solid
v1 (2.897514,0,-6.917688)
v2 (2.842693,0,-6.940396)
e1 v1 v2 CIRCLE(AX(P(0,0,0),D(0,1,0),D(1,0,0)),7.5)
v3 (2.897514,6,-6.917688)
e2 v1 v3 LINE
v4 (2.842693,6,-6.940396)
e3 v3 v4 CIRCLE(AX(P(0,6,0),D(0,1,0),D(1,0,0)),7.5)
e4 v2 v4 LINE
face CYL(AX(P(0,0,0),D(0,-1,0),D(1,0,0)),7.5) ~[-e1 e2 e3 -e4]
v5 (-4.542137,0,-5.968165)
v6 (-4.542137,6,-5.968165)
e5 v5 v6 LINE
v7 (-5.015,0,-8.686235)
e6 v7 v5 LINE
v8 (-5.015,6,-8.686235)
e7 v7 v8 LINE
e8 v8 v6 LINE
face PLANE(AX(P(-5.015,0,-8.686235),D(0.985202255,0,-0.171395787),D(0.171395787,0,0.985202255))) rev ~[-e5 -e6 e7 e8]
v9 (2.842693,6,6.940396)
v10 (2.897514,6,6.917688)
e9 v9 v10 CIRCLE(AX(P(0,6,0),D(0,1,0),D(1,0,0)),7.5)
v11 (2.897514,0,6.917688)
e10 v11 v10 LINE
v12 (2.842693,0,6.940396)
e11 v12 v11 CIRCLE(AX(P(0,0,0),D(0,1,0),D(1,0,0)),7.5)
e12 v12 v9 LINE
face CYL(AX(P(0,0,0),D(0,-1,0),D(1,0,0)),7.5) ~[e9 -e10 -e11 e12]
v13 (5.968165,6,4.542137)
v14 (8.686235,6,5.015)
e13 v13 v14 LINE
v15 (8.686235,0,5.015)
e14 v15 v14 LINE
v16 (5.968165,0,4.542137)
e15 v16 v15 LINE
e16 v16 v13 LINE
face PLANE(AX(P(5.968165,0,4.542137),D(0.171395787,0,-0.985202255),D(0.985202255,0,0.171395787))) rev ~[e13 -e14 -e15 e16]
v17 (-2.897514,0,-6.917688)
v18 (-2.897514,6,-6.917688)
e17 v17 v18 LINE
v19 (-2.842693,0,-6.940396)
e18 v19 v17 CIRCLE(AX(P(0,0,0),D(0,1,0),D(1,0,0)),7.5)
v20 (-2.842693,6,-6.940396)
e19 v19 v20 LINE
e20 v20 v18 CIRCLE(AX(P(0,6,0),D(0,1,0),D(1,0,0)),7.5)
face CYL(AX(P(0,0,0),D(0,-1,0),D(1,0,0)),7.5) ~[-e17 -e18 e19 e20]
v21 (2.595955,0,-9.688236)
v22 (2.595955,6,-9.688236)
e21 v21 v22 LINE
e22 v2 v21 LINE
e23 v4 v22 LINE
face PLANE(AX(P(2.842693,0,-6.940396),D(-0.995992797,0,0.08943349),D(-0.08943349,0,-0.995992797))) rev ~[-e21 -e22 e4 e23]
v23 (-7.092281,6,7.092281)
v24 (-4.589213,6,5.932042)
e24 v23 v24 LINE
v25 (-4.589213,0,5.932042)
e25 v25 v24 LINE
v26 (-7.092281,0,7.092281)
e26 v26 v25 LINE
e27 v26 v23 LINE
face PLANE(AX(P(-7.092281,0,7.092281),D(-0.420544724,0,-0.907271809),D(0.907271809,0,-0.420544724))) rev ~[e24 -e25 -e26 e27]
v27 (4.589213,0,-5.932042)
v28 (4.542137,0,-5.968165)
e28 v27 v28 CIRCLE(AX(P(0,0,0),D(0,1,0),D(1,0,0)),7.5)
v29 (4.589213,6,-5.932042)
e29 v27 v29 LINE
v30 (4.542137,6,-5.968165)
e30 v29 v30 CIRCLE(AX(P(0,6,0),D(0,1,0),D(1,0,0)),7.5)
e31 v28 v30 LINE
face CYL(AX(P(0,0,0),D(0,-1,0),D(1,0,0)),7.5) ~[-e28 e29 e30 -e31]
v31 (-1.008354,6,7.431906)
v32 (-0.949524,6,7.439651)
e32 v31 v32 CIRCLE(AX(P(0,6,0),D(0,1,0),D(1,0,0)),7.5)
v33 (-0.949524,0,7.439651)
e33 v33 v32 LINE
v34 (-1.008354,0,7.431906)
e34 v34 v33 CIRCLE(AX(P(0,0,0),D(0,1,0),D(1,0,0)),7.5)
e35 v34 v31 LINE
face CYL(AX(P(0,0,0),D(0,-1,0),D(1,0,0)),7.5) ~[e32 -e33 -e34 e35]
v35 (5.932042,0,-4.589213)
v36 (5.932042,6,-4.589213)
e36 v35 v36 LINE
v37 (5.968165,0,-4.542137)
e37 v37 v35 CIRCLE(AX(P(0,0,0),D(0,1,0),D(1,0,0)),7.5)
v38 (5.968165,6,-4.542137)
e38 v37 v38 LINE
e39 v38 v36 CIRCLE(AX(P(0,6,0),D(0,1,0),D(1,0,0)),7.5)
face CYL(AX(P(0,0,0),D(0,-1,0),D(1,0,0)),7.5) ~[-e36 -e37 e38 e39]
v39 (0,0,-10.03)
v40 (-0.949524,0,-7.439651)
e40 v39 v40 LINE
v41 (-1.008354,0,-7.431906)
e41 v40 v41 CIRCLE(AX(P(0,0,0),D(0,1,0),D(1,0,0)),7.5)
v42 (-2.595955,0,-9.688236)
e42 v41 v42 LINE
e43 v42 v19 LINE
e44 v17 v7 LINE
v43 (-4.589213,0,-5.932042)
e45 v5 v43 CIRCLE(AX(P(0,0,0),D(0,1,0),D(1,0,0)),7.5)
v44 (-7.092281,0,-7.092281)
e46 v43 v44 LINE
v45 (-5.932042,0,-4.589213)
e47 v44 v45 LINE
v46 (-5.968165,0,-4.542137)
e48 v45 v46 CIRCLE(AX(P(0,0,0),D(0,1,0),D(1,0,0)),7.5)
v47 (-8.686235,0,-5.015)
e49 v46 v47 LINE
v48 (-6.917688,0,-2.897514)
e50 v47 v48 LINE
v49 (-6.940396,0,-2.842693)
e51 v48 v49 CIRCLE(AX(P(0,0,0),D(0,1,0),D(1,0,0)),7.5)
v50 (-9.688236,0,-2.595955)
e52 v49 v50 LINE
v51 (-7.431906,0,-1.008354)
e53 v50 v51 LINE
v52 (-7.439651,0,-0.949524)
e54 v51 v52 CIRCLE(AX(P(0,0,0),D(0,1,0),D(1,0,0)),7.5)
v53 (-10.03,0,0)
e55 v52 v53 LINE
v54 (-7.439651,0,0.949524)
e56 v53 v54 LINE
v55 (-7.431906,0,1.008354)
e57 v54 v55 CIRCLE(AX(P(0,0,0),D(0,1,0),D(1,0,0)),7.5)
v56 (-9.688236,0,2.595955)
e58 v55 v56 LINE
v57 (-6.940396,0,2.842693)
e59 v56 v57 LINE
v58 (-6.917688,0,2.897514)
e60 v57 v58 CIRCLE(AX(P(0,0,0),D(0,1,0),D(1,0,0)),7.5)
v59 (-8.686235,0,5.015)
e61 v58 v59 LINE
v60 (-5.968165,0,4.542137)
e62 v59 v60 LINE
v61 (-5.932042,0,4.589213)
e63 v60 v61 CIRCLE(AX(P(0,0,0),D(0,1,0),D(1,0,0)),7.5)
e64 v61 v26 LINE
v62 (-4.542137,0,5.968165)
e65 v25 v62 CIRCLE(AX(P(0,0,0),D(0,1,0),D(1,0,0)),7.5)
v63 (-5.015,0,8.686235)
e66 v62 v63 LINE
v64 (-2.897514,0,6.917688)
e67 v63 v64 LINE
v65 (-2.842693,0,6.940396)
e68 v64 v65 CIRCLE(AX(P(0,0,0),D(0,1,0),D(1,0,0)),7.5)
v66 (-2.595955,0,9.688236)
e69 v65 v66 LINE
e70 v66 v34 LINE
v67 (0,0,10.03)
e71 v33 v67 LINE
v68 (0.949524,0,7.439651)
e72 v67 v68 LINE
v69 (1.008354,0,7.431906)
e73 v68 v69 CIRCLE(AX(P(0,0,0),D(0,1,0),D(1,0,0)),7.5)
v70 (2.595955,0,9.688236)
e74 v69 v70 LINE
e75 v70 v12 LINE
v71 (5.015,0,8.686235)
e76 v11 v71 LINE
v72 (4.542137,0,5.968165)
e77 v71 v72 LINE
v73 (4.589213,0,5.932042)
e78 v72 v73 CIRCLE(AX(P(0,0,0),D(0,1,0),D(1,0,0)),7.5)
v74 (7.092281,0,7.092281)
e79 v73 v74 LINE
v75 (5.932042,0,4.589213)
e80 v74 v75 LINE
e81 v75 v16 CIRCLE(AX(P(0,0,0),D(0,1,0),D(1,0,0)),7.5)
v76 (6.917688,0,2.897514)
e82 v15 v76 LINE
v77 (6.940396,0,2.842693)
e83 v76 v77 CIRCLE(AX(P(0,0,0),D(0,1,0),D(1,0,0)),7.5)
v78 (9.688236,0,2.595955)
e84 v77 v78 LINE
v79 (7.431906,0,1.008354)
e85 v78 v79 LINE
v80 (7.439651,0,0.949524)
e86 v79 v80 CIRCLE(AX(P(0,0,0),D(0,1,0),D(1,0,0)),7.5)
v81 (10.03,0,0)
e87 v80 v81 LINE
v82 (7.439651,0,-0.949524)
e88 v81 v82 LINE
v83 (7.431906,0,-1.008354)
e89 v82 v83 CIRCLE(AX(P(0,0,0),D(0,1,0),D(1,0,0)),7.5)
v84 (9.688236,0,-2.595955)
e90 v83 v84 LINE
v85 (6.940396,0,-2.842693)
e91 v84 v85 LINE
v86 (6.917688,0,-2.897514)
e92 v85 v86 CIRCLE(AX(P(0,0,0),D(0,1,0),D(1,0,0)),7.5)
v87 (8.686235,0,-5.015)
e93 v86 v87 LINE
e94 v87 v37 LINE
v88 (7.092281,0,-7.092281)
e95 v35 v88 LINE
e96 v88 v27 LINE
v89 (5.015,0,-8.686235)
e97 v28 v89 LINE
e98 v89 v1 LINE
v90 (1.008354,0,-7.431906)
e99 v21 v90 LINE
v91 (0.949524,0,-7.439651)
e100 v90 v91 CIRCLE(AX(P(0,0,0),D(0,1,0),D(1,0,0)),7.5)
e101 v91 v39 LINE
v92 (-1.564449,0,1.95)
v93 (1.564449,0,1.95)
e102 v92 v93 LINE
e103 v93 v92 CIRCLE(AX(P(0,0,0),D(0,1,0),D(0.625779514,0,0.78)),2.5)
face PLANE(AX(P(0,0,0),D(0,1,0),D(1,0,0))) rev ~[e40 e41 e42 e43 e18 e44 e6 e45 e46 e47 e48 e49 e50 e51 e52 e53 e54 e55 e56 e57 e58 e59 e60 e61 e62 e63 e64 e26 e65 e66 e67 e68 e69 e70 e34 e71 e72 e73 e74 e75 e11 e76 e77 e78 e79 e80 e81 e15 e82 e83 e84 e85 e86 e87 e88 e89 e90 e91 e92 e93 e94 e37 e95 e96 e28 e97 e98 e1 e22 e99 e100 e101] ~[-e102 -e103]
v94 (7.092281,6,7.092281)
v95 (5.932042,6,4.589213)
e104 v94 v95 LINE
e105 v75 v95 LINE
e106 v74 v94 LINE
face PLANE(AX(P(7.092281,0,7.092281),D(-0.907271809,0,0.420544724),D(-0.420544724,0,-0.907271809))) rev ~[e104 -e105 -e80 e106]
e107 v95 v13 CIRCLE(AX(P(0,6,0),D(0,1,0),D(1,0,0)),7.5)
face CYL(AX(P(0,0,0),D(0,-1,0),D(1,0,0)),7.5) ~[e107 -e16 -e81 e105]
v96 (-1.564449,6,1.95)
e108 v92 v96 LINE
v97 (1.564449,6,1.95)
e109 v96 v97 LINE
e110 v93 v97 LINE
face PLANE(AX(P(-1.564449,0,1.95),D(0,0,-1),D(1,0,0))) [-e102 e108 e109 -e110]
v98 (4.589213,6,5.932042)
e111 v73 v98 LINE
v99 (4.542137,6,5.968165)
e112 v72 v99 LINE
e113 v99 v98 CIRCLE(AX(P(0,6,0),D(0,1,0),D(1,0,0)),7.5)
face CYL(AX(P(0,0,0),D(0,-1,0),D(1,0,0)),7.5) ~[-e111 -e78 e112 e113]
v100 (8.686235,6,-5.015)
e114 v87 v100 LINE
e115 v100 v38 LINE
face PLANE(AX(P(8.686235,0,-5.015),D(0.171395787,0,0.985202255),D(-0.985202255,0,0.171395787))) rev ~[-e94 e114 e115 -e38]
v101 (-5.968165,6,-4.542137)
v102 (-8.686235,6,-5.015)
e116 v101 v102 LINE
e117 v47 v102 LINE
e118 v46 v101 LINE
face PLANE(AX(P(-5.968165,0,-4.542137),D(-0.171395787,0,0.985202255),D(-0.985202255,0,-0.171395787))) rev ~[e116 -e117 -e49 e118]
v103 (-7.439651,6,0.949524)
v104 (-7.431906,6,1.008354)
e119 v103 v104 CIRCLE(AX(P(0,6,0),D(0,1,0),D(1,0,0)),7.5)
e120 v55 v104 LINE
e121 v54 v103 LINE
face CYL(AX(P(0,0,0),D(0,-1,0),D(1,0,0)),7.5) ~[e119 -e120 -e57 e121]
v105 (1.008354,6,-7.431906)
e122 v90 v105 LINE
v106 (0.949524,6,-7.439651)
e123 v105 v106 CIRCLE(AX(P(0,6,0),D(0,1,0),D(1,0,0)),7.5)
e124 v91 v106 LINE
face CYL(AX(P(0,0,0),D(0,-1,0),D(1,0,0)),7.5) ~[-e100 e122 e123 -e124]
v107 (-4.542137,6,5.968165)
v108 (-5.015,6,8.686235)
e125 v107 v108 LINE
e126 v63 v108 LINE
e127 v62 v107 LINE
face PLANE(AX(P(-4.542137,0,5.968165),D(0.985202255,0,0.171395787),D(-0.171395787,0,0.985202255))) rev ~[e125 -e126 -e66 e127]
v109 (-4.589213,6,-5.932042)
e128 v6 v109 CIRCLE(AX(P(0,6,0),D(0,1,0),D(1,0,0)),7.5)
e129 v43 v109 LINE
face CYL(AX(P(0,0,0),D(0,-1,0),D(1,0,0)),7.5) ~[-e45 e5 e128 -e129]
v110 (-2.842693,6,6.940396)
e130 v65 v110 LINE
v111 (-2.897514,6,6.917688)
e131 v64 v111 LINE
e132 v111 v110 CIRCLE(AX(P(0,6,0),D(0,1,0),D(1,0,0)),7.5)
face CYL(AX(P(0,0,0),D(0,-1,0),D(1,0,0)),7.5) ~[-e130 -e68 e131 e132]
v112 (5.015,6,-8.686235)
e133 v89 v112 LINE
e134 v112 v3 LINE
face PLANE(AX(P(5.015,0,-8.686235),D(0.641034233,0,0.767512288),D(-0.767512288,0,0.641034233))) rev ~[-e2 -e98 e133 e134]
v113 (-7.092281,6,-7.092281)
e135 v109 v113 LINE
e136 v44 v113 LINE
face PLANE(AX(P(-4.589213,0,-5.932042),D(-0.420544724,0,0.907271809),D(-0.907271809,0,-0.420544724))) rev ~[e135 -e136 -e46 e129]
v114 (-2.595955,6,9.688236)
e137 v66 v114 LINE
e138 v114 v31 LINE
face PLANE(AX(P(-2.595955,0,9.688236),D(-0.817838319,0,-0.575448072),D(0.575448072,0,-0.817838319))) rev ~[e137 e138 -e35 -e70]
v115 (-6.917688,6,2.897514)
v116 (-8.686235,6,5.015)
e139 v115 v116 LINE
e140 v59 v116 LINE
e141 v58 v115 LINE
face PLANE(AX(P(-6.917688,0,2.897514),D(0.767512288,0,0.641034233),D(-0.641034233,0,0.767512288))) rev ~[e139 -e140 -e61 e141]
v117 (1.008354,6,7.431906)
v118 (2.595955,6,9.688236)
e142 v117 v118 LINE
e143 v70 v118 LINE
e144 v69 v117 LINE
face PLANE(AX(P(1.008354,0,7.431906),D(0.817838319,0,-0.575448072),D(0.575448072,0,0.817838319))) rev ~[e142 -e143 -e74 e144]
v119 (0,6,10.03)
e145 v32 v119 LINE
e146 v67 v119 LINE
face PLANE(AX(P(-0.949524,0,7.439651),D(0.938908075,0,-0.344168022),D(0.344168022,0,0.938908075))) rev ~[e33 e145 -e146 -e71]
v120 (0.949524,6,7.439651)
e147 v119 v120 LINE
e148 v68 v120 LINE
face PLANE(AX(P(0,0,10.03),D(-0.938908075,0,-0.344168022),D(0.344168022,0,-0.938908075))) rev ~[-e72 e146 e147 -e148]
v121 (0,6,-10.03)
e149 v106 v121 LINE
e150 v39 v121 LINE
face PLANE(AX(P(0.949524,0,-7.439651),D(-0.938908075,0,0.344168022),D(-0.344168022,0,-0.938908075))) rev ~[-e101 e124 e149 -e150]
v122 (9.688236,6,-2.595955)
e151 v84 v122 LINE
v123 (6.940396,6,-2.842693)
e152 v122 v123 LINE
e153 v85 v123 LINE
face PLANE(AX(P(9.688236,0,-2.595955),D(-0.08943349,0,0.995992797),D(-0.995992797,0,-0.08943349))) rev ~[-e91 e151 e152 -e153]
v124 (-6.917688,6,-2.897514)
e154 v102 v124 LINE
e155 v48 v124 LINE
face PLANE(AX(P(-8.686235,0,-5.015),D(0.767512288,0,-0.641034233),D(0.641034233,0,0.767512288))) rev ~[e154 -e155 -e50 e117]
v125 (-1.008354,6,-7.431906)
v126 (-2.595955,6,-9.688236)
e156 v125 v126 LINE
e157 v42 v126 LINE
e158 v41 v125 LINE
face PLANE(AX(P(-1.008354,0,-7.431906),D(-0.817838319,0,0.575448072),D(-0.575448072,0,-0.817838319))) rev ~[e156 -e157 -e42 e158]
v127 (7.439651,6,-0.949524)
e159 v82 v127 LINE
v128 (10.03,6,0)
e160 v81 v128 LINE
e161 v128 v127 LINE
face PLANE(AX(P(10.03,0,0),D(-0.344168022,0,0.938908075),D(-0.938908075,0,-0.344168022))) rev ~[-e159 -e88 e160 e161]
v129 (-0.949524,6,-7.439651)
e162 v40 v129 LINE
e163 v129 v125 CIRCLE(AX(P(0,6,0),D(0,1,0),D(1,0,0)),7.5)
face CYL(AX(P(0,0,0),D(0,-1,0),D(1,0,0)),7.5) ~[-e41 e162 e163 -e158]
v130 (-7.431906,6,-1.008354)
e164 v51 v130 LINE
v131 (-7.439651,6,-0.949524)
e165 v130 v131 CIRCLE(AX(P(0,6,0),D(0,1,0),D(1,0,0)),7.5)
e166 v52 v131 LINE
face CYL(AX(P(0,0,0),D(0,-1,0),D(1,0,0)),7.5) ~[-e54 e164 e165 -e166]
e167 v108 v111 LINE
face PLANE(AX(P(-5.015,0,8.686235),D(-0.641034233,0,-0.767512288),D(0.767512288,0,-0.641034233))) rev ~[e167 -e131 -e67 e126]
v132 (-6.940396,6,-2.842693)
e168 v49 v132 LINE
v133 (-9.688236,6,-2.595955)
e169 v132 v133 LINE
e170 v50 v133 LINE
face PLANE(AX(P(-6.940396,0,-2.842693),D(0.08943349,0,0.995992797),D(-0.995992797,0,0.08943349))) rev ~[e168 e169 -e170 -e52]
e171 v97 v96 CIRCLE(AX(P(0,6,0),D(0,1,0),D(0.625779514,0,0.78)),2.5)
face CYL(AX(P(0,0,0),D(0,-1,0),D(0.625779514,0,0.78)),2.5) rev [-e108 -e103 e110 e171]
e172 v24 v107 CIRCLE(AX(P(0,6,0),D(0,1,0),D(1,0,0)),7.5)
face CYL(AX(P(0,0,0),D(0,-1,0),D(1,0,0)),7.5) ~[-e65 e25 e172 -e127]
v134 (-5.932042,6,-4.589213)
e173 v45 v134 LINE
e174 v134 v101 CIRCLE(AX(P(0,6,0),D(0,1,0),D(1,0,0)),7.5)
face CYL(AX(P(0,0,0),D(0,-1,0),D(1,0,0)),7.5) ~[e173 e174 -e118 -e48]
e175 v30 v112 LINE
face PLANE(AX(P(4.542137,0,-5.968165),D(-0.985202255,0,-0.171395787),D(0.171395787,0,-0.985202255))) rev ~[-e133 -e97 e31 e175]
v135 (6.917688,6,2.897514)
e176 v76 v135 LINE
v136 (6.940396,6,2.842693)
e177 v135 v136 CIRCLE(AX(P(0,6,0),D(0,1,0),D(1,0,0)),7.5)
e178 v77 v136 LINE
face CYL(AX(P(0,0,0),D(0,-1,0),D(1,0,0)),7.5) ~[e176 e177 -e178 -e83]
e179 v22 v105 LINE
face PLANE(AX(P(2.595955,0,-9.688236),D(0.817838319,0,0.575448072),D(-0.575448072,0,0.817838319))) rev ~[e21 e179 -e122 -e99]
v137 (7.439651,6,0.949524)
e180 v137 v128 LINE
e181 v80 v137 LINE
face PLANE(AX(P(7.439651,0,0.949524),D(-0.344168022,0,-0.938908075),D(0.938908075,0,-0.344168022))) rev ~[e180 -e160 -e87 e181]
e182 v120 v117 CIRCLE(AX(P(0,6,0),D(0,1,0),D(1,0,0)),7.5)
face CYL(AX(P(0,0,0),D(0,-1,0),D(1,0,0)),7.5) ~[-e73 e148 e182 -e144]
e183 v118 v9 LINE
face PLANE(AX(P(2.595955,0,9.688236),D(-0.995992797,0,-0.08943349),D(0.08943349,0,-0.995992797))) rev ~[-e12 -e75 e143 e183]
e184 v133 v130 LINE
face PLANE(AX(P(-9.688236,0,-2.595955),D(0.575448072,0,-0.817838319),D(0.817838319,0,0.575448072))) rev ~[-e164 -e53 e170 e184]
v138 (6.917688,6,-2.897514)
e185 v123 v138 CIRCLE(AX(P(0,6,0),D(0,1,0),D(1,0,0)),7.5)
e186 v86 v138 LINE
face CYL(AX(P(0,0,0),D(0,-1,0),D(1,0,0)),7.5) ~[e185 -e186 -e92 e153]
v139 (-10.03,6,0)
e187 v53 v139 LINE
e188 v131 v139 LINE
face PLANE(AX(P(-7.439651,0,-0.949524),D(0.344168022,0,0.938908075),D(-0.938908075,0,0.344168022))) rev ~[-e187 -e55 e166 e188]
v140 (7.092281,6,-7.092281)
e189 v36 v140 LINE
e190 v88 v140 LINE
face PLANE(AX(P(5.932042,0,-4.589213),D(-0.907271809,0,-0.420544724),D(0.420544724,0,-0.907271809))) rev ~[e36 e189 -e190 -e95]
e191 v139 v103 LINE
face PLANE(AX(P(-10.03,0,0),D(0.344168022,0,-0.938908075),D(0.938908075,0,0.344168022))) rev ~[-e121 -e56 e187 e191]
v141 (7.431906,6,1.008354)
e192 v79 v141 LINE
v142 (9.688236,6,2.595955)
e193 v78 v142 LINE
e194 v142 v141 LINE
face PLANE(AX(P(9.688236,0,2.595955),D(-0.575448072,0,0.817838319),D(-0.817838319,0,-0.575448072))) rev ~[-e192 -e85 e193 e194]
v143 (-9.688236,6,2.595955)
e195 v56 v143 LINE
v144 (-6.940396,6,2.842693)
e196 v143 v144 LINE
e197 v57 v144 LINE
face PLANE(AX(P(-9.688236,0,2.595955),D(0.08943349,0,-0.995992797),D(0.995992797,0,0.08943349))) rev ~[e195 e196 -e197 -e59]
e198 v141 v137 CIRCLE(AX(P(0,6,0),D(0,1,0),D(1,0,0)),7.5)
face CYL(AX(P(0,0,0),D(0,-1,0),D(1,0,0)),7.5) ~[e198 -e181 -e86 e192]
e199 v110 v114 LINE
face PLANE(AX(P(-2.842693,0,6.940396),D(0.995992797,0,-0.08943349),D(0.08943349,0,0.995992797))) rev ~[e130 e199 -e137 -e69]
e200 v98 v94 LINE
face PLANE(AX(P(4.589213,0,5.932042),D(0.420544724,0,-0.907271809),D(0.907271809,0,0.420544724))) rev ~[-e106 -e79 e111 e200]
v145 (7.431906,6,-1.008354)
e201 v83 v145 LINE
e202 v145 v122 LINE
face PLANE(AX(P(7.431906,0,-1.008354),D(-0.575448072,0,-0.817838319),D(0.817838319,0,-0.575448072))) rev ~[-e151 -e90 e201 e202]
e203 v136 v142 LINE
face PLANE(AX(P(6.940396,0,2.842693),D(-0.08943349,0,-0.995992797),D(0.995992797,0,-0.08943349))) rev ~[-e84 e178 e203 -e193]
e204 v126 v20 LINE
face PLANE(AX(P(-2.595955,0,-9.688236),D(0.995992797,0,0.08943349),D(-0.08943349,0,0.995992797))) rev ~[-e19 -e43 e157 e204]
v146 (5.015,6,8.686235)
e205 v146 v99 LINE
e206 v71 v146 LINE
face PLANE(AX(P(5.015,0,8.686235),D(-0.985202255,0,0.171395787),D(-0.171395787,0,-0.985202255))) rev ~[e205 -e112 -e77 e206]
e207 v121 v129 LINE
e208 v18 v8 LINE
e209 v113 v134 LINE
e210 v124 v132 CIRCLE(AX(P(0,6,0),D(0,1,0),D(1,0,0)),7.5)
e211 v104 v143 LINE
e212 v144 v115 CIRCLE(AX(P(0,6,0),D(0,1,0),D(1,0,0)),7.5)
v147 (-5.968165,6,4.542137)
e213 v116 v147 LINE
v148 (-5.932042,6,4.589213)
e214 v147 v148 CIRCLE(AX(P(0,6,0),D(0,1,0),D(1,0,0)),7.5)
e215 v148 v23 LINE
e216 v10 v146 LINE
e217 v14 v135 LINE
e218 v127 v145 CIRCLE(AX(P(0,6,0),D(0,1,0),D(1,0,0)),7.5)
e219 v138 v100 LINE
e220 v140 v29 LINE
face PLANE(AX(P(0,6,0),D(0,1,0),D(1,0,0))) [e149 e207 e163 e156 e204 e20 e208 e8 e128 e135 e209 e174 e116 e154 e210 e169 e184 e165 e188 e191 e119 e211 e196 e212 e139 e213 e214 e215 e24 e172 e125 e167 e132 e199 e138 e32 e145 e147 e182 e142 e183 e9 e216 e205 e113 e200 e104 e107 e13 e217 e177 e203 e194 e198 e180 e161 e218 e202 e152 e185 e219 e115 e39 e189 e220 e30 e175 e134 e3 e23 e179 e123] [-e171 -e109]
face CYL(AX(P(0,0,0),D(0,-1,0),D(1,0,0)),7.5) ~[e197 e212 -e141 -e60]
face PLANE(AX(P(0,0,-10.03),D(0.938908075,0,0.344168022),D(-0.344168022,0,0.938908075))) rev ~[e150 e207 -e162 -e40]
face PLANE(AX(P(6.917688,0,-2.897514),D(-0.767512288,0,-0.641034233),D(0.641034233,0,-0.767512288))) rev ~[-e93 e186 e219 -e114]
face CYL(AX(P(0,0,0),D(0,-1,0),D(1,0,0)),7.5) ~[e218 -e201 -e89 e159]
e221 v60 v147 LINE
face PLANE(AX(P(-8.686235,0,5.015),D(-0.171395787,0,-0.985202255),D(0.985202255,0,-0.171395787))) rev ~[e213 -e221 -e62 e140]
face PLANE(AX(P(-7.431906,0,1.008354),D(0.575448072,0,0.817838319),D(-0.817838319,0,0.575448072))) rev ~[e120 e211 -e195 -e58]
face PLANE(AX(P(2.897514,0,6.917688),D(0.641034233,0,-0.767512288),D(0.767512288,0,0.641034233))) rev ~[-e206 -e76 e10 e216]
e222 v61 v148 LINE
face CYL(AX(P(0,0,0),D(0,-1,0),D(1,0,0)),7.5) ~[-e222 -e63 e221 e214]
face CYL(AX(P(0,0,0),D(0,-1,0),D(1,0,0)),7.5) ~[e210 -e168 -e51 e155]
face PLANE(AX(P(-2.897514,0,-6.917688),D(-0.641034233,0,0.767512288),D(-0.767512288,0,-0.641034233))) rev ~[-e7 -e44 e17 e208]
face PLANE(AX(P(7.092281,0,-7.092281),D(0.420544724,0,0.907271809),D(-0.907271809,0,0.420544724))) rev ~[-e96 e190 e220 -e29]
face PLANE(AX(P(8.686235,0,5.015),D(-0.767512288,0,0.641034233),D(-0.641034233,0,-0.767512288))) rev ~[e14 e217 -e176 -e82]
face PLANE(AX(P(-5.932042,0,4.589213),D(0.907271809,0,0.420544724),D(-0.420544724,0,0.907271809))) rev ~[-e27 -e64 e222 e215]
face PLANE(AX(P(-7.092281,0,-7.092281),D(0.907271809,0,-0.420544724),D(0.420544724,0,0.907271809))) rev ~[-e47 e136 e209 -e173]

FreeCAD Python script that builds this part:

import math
import FreeCAD as App
import Part
import Sketcher
from FreeCAD import Vector

doc = App.newDocument("Part")
body = doc.addObject("PartDesign::Body", "Body")

# Sketch on XZ plane
sketch1 = doc.addObject("Sketcher::SketchObject", "Sketch")
body.addObject(sketch1)
sketch1.AttachmentSupport = (doc.XZ_Plane, [""])
sketch1.MapMode = "FlatFace"
sketch1.addGeometry(Part.ArcOfCircle(Part.Circle(Vector(0, 0, 0), Vector(0, 0, 1), 7.5), math.radians(-7.73), math.radians(-7.27)), False)
sketch1.addGeometry(Part.LineSegment(Vector(7.43, -1.01, 0), Vector(9.69, -2.6, 0)), False)
sketch1.addGeometry(Part.LineSegment(Vector(9.69, -2.6, 0), Vector(6.94, -2.84, 0)), False)
sketch1.addGeometry(Part.ArcOfCircle(Part.Circle(Vector(0, 0, 0), Vector(0, 0, 1), 7.5), math.radians(-22.73), math.radians(-22.27)), False)
sketch1.addGeometry(Part.LineSegment(Vector(6.92, -2.9, 0), Vector(8.69, -5.01, 0)), False)
sketch1.addGeometry(Part.LineSegment(Vector(8.69, -5.01, 0), Vector(5.97, -4.54, 0)), False)
sketch1.addGeometry(Part.ArcOfCircle(Part.Circle(Vector(0, 0, 0), Vector(0, 0, 1), 7.5), math.radians(-37.73), math.radians(-37.27)), False)
sketch1.addGeometry(Part.LineSegment(Vector(5.93, -4.59, 0), Vector(7.09, -7.09, 0)), False)
sketch1.addGeometry(Part.LineSegment(Vector(7.09, -7.09, 0), Vector(4.59, -5.93, 0)), False)
sketch1.addGeometry(Part.ArcOfCircle(Part.Circle(Vector(0, 0, 0), Vector(0, 0, 1), 7.5), math.radians(-52.73), math.radians(-52.27)), False)
sketch1.addGeometry(Part.LineSegment(Vector(4.54, -5.97, 0), Vector(5.01, -8.69, 0)), False)
sketch1.addGeometry(Part.LineSegment(Vector(5.01, -8.69, 0), Vector(2.9, -6.92, 0)), False)
sketch1.addGeometry(Part.ArcOfCircle(Part.Circle(Vector(0, 0, 0), Vector(0, 0, 1), 7.5), math.radians(-67.73), math.radians(-67.27)), False)
sketch1.addGeometry(Part.LineSegment(Vector(2.84, -6.94, 0), Vector(2.6, -9.69, 0)), False)
sketch1.addGeometry(Part.LineSegment(Vector(2.6, -9.69, 0), Vector(1.01, -7.43, 0)), False)
sketch1.addGeometry(Part.ArcOfCircle(Part.Circle(Vector(0, 0, 0), Vector(0, 0, 1), 7.5), math.radians(-82.73), math.radians(-82.27)), False)
sketch1.addGeometry(Part.LineSegment(Vector(0.95, -7.44, 0), Vector(0, -10.03, 0)), False)
sketch1.addGeometry(Part.LineSegment(Vector(0, -10.03, 0), Vector(-0.95, -7.44, 0)), False)
sketch1.addGeometry(Part.ArcOfCircle(Part.Circle(Vector(0, 0, 0), Vector(0, 0, 1), 7.5), math.radians(-97.73), math.radians(-97.27)), False)
sketch1.addGeometry(Part.LineSegment(Vector(-1.01, -7.43, 0), Vector(-2.6, -9.69, 0)), False)
sketch1.addGeometry(Part.LineSegment(Vector(-2.6, -9.69, 0), Vector(-2.84, -6.94, 0)), False)
sketch1.addGeometry(Part.ArcOfCircle(Part.Circle(Vector(0, 0, 0), Vector(0, 0, 1), 7.5), math.radians(-112.73), math.radians(-112.27)), False)
sketch1.addGeometry(Part.LineSegment(Vector(-2.9, -6.92, 0), Vector(-5.01, -8.69, 0)), False)
sketch1.addGeometry(Part.LineSegment(Vector(-5.01, -8.69, 0), Vector(-4.54, -5.97, 0)), False)
sketch1.addGeometry(Part.ArcOfCircle(Part.Circle(Vector(0, 0, 0), Vector(0, 0, 1), 7.5), math.radians(-127.73), math.radians(-127.27)), False)
sketch1.addGeometry(Part.LineSegment(Vector(-4.59, -5.93, 0), Vector(-7.09, -7.09, 0)), False)
sketch1.addGeometry(Part.LineSegment(Vector(-7.09, -7.09, 0), Vector(-5.93, -4.59, 0)), False)
sketch1.addGeometry(Part.ArcOfCircle(Part.Circle(Vector(0, 0, 0), Vector(0, 0, 1), 7.5), math.radians(-142.73), math.radians(-142.27)), False)
sketch1.addGeometry(Part.LineSegment(Vector(-5.97, -4.54, 0), Vector(-8.69, -5.01, 0)), False)
sketch1.addGeometry(Part.LineSegment(Vector(-8.69, -5.01, 0), Vector(-6.92, -2.9, 0)), False)
sketch1.addGeometry(Part.ArcOfCircle(Part.Circle(Vector(0, 0, 0), Vector(0, 0, 1), 7.5), math.radians(-157.73), math.radians(-157.27)), False)
sketch1.addGeometry(Part.LineSegment(Vector(-6.94, -2.84, 0), Vector(-9.69, -2.6, 0)), False)
sketch1.addGeometry(Part.LineSegment(Vector(-9.69, -2.6, 0), Vector(-7.43, -1.01, 0)), False)
sketch1.addGeometry(Part.ArcOfCircle(Part.Circle(Vector(0, 0, 0), Vector(0, 0, 1), 7.5), math.radians(-172.73), math.radians(-172.27)), False)
sketch1.addGeometry(Part.LineSegment(Vector(-7.44, -0.95, 0), Vector(-10.03, 0, 0)), False)
sketch1.addGeometry(Part.LineSegment(Vector(-10.03, 0, 0), Vector(-7.44, 0.95, 0)), False)
sketch1.addGeometry(Part.ArcOfCircle(Part.Circle(Vector(0, 0, 0), Vector(0, 0, 1), 7.5), math.radians(172.27), math.radians(172.73)), False)
sketch1.addGeometry(Part.LineSegment(Vector(-7.43, 1.01, 0), Vector(-9.69, 2.6, 0)), False)
sketch1.addGeometry(Part.LineSegment(Vector(-9.69, 2.6, 0), Vector(-6.94, 2.84, 0)), False)
sketch1.addGeometry(Part.ArcOfCircle(Part.Circle(Vector(0, 0, 0), Vector(0, 0, 1), 7.5), math.radians(157.27), math.radians(157.73)), False)
sketch1.addGeometry(Part.LineSegment(Vector(-6.92, 2.9, 0), Vector(-8.69, 5.01, 0)), False)
sketch1.addGeometry(Part.LineSegment(Vector(-8.69, 5.01, 0), Vector(-5.97, 4.54, 0)), False)
sketch1.addGeometry(Part.ArcOfCircle(Part.Circle(Vector(0, 0, 0), Vector(0, 0, 1), 7.5), math.radians(142.27), math.radians(142.73)), False)
sketch1.addGeometry(Part.LineSegment(Vector(-5.93, 4.59, 0), Vector(-7.09, 7.09, 0)), False)
sketch1.addGeometry(Part.LineSegment(Vector(-7.09, 7.09, 0), Vector(-4.59, 5.93, 0)), False)
sketch1.addGeometry(Part.ArcOfCircle(Part.Circle(Vector(0, 0, 0), Vector(0, 0, 1), 7.5), math.radians(127.27), math.radians(127.73)), False)
sketch1.addGeometry(Part.LineSegment(Vector(-4.54, 5.97, 0), Vector(-5.01, 8.69, 0)), False)
sketch1.addGeometry(Part.LineSegment(Vector(-5.01, 8.69, 0), Vector(-2.9, 6.92, 0)), False)
sketch1.addGeometry(Part.ArcOfCircle(Part.Circle(Vector(0, 0, 0), Vector(0, 0, 1), 7.5), math.radians(112.27), math.radians(112.73)), False)
sketch1.addGeometry(Part.LineSegment(Vector(-2.84, 6.94, 0), Vector(-2.6, 9.69, 0)), False)
sketch1.addGeometry(Part.LineSegment(Vector(-2.6, 9.69, 0), Vector(-1.01, 7.43, 0)), False)
sketch1.addGeometry(Part.ArcOfCircle(Part.Circle(Vector(0, 0, 0), Vector(0, 0, 1), 7.5), math.radians(97.27), math.radians(97.73)), False)
sketch1.addGeometry(Part.LineSegment(Vector(-0.95, 7.44, 0), Vector(0, 10.03, 0)), False)
sketch1.addGeometry(Part.LineSegment(Vector(0, 10.03, 0), Vector(0.95, 7.44, 0)), False)
sketch1.addGeometry(Part.ArcOfCircle(Part.Circle(Vector(0, 0, 0), Vector(0, 0, 1), 7.5), math.radians(82.27), math.radians(82.73)), False)
sketch1.addGeometry(Part.LineSegment(Vector(1.01, 7.43, 0), Vector(2.6, 9.69, 0)), False)
sketch1.addGeometry(Part.LineSegment(Vector(2.6, 9.69, 0), Vector(2.84, 6.94, 0)), False)
sketch1.addGeometry(Part.ArcOfCircle(Part.Circle(Vector(0, 0, 0), Vector(0, 0, 1), 7.5), math.radians(67.27), math.radians(67.73)), False)
sketch1.addGeometry(Part.LineSegment(Vector(2.9, 6.92, 0), Vector(5.01, 8.69, 0)), False)
sketch1.addGeometry(Part.LineSegment(Vector(5.01, 8.69, 0), Vector(4.54, 5.97, 0)), False)
sketch1.addGeometry(Part.ArcOfCircle(Part.Circle(Vector(0, 0, 0), Vector(0, 0, 1), 7.5), math.radians(52.27), math.radians(52.73)), False)
sketch1.addGeometry(Part.LineSegment(Vector(4.59, 5.93, 0), Vector(7.09, 7.09, 0)), False)
sketch1.addGeometry(Part.LineSegment(Vector(7.09, 7.09, 0), Vector(5.93, 4.59, 0)), False)
sketch1.addGeometry(Part.ArcOfCircle(Part.Circle(Vector(0, 0, 0), Vector(0, 0, 1), 7.5), math.radians(37.27), math.radians(37.73)), False)
sketch1.addGeometry(Part.LineSegment(Vector(5.97, 4.54, 0), Vector(8.69, 5.01, 0)), False)
sketch1.addGeometry(Part.LineSegment(Vector(8.69, 5.01, 0), Vector(6.92, 2.9, 0)), False)
sketch1.addGeometry(Part.ArcOfCircle(Part.Circle(Vector(0, 0, 0), Vector(0, 0, 1), 7.5), math.radians(22.27), math.radians(22.73)), False)
sketch1.addGeometry(Part.LineSegment(Vector(6.94, 2.84, 0), Vector(9.69, 2.6, 0)), False)
sketch1.addGeometry(Part.LineSegment(Vector(9.69, 2.6, 0), Vector(7.43, 1.01, 0)), False)
sketch1.addGeometry(Part.ArcOfCircle(Part.Circle(Vector(0, 0, 0), Vector(0, 0, 1), 7.5), math.radians(7.27), math.radians(7.73)), False)
sketch1.addGeometry(Part.LineSegment(Vector(7.44, 0.95, 0), Vector(10.03, 0, 0)), False)
sketch1.addGeometry(Part.LineSegment(Vector(10.03, 0, 0), Vector(7.44, -0.95, 0)), False)
sketch1.addGeometry(Part.LineSegment(Vector(1.56, 1.95, 0), Vector(-1.56, 1.95, 0)), False)
sketch1.addGeometry(Part.ArcOfCircle(Part.Circle(Vector(0, 0, 0), Vector(0, 0, 1), 2.5), math.radians(129), math.radians(411)), False)
sketch1.addConstraint(Sketcher.Constraint("Coincident", 0, 1, 1, 1))
sketch1.addConstraint(Sketcher.Constraint("Coincident", 1, 2, 2, 1))
sketch1.addConstraint(Sketcher.Constraint("Coincident", 2, 2, 3, 2))
sketch1.addConstraint(Sketcher.Constraint("Coincident", 3, 1, 4, 1))
sketch1.addConstraint(Sketcher.Constraint("Coincident", 4, 2, 5, 1))
sketch1.addConstraint(Sketcher.Constraint("Coincident", 5, 2, 6, 2))
sketch1.addConstraint(Sketcher.Constraint("Coincident", 6, 1, 7, 1))
sketch1.addConstraint(Sketcher.Constraint("Coincident", 7, 2, 8, 1))
sketch1.addConstraint(Sketcher.Constraint("Coincident", 8, 2, 9, 2))
sketch1.addConstraint(Sketcher.Constraint("Coincident", 9, 1, 10, 1))
sketch1.addConstraint(Sketcher.Constraint("Coincident", 10, 2, 11, 1))
sketch1.addConstraint(Sketcher.Constraint("Coincident", 11, 2, 12, 2))
sketch1.addConstraint(Sketcher.Constraint("Coincident", 12, 1, 13, 1))
sketch1.addConstraint(Sketcher.Constraint("Coincident", 13, 2, 14, 1))
sketch1.addConstraint(Sketcher.Constraint("Coincident", 14, 2, 15, 2))
sketch1.addConstraint(Sketcher.Constraint("Coincident", 15, 1, 16, 1))
sketch1.addConstraint(Sketcher.Constraint("Coincident", 16, 2, 17, 1))
sketch1.addConstraint(Sketcher.Constraint("Coincident", 17, 2, 18, 2))
sketch1.addConstraint(Sketcher.Constraint("Coincident", 18, 1, 19, 1))
sketch1.addConstraint(Sketcher.Constraint("Coincident", 19, 2, 20, 1))
sketch1.addConstraint(Sketcher.Constraint("Coincident", 20, 2, 21, 2))
sketch1.addConstraint(Sketcher.Constraint("Coincident", 21, 1, 22, 1))
sketch1.addConstraint(Sketcher.Constraint("Coincident", 22, 2, 23, 1))
sketch1.addConstraint(Sketcher.Constraint("Coincident", 23, 2, 24, 2))
sketch1.addConstraint(Sketcher.Constraint("Coincident", 24, 1, 25, 1))
sketch1.addConstraint(Sketcher.Constraint("Coincident", 25, 2, 26, 1))
sketch1.addConstraint(Sketcher.Constraint("Coincident", 26, 2, 27, 2))
sketch1.addConstraint(Sketcher.Constraint("Coincident", 27, 1, 28, 1))
sketch1.addConstraint(Sketcher.Constraint("Coincident", 28, 2, 29, 1))
sketch1.addConstraint(Sketcher.Constraint("Coincident", 29, 2, 30, 2))
sketch1.addConstraint(Sketcher.Constraint("Coincident", 30, 1, 31, 1))
sketch1.addConstraint(Sketcher.Constraint("Coincident", 31, 2, 32, 1))
sketch1.addConstraint(Sketcher.Constraint("Coincident", 32, 2, 33, 2))
sketch1.addConstraint(Sketcher.Constraint("Coincident", 33, 1, 34, 1))
sketch1.addConstraint(Sketcher.Constraint("Coincident", 34, 2, 35, 1))
sketch1.addConstraint(Sketcher.Constraint("Coincident", 35, 2, 36, 2))
sketch1.addConstraint(Sketcher.Constraint("Coincident", 36, 1, 37, 1))
sketch1.addConstraint(Sketcher.Constraint("Coincident", 37, 2, 38, 1))
sketch1.addConstraint(Sketcher.Constraint("Coincident", 38, 2, 39, 2))
sketch1.addConstraint(Sketcher.Constraint("Coincident", 39, 1, 40, 1))
sketch1.addConstraint(Sketcher.Constraint("Coincident", 40, 2, 41, 1))
sketch1.addConstraint(Sketcher.Constraint("Coincident", 41, 2, 42, 2))
sketch1.addConstraint(Sketcher.Constraint("Coincident", 42, 1, 43, 1))
sketch1.addConstraint(Sketcher.Constraint("Coincident", 43, 2, 44, 1))
sketch1.addConstraint(Sketcher.Constraint("Coincident", 44, 2, 45, 2))
sketch1.addConstraint(Sketcher.Constraint("Coincident", 45, 1, 46, 1))
sketch1.addConstraint(Sketcher.Constraint("Coincident", 46, 2, 47, 1))
sketch1.addConstraint(Sketcher.Constraint("Coincident", 47, 2, 48, 2))
sketch1.addConstraint(Sketcher.Constraint("Coincident", 48, 1, 49, 1))
sketch1.addConstraint(Sketcher.Constraint("Coincident", 49, 2, 50, 1))
sketch1.addConstraint(Sketcher.Constraint("Coincident", 50, 2, 51, 2))
sketch1.addConstraint(Sketcher.Constraint("Coincident", 51, 1, 52, 1))
sketch1.addConstraint(Sketcher.Constraint("Coincident", 52, 2, 53, 1))
sketch1.addConstraint(Sketcher.Constraint("Coincident", 53, 2, 54, 2))
sketch1.addConstraint(Sketcher.Constraint("Coincident", 54, 1, 55, 1))
sketch1.addConstraint(Sketcher.Constraint("Coincident", 55, 2, 56, 1))
sketch1.addConstraint(Sketcher.Constraint("Coincident", 56, 2, 57, 2))
sketch1.addConstraint(Sketcher.Constraint("Coincident", 57, 1, 58, 1))
sketch1.addConstraint(Sketcher.Constraint("Coincident", 58, 2, 59, 1))
sketch1.addConstraint(Sketcher.Constraint("Coincident", 59, 2, 60, 2))
sketch1.addConstraint(Sketcher.Constraint("Coincident", 60, 1, 61, 1))
sketch1.addConstraint(Sketcher.Constraint("Coincident", 61, 2, 62, 1))
sketch1.addConstraint(Sketcher.Constraint("Coincident", 62, 2, 63, 2))
sketch1.addConstraint(Sketcher.Constraint("Coincident", 63, 1, 64, 1))
sketch1.addConstraint(Sketcher.Constraint("Coincident", 64, 2, 65, 1))
sketch1.addConstraint(Sketcher.Constraint("Coincident", 65, 2, 66, 2))
sketch1.addConstraint(Sketcher.Constraint("Coincident", 66, 1, 67, 1))
sketch1.addConstraint(Sketcher.Constraint("Coincident", 67, 2, 68, 1))
sketch1.addConstraint(Sketcher.Constraint("Coincident", 68, 2, 69, 2))
sketch1.addConstraint(Sketcher.Constraint("Coincident", 69, 1, 70, 1))
sketch1.addConstraint(Sketcher.Constraint("Coincident", 70, 2, 71, 1))
sketch1.addConstraint(Sketcher.Constraint("Coincident", 71, 2, 0, 2))
sketch1.addConstraint(Sketcher.Constraint("Coincident", 72, 1, 73, 2))
sketch1.addConstraint(Sketcher.Constraint("Coincident", 73, 1, 72, 2))
sketch1.addConstraint(Sketcher.Constraint("Horizontal", 72))
sketch1.addConstraint(Sketcher.Constraint("Coincident", 0, 3, -1, 1))
sketch1.addConstraint(Sketcher.Constraint("Coincident", 3, 3, -1, 1))
sketch1.addConstraint(Sketcher.Constraint("Coincident", 6, 3, -1, 1))
sketch1.addConstraint(Sketcher.Constraint("Coincident", 9, 3, -1, 1))
sketch1.addConstraint(Sketcher.Constraint("Coincident", 12, 3, -1, 1))
sketch1.addConstraint(Sketcher.Constraint("Coincident", 15, 3, -1, 1))
sketch1.addConstraint(Sketcher.Constraint("Coincident", 18, 3, -1, 1))
sketch1.addConstraint(Sketcher.Constraint("Coincident", 21, 3, -1, 1))
sketch1.addConstraint(Sketcher.Constraint("Coincident", 24, 3, -1, 1))
sketch1.addConstraint(Sketcher.Constraint("Coincident", 27, 3, -1, 1))
sketch1.addConstraint(Sketcher.Constraint("Coincident", 30, 3, -1, 1))
sketch1.addConstraint(Sketcher.Constraint("Coincident", 33, 3, -1, 1))
sketch1.addConstraint(Sketcher.Constraint("Coincident", 36, 3, -1, 1))
sketch1.addConstraint(Sketcher.Constraint("Coincident", 39, 3, -1, 1))
sketch1.addConstraint(Sketcher.Constraint("Coincident", 42, 3, -1, 1))
sketch1.addConstraint(Sketcher.Constraint("Coincident", 45, 3, -1, 1))
sketch1.addConstraint(Sketcher.Constraint("Coincident", 48, 3, -1, 1))
sketch1.addConstraint(Sketcher.Constraint("Coincident", 51, 3, -1, 1))
sketch1.addConstraint(Sketcher.Constraint("Coincident", 54, 3, -1, 1))
sketch1.addConstraint(Sketcher.Constraint("Coincident", 57, 3, -1, 1))
sketch1.addConstraint(Sketcher.Constraint("Coincident", 60, 3, -1, 1))
sketch1.addConstraint(Sketcher.Constraint("Coincident", 63, 3, -1, 1))
sketch1.addConstraint(Sketcher.Constraint("Coincident", 66, 3, -1, 1))
sketch1.addConstraint(Sketcher.Constraint("Coincident", 69, 3, -1, 1))
sketch1.addConstraint(Sketcher.Constraint("Coincident", 73, 3, -1, 1))
sketch1.addConstraint(Sketcher.Constraint("Equal", 0, 3))
sketch1.addConstraint(Sketcher.Constraint("Equal", 3, 6))
sketch1.addConstraint(Sketcher.Constraint("Equal", 6, 9))
sketch1.addConstraint(Sketcher.Constraint("Equal", 9, 12))
sketch1.addConstraint(Sketcher.Constraint("Equal", 12, 15))
sketch1.addConstraint(Sketcher.Constraint("Equal", 15, 18))
sketch1.addConstraint(Sketcher.Constraint("Equal", 18, 21))
sketch1.addConstraint(Sketcher.Constraint("Equal", 21, 24))
sketch1.addConstraint(Sketcher.Constraint("Equal", 24, 27))
sketch1.addConstraint(Sketcher.Constraint("Equal", 27, 30))
sketch1.addConstraint(Sketcher.Constraint("Equal", 30, 33))
sketch1.addConstraint(Sketcher.Constraint("Equal", 33, 36))
sketch1.addConstraint(Sketcher.Constraint("Equal", 36, 39))
sketch1.addConstraint(Sketcher.Constraint("Equal", 39, 42))
sketch1.addConstraint(Sketcher.Constraint("Equal", 42, 45))
sketch1.addConstraint(Sketcher.Constraint("Equal", 45, 48))
sketch1.addConstraint(Sketcher.Constraint("Equal", 48, 51))
sketch1.addConstraint(Sketcher.Constraint("Equal", 51, 54))
sketch1.addConstraint(Sketcher.Constraint("Equal", 54, 57))
sketch1.addConstraint(Sketcher.Constraint("Equal", 57, 60))
sketch1.addConstraint(Sketcher.Constraint("Equal", 60, 63))
sketch1.addConstraint(Sketcher.Constraint("Equal", 63, 66))
sketch1.addConstraint(Sketcher.Constraint("Equal", 66, 69))
sketch1.addConstraint(Sketcher.Constraint("Symmetric", 1, 2, 37, 2, -1, 1))
sketch1.addConstraint(Sketcher.Constraint("Symmetric", 4, 2, 40, 2, -1, 1))
sketch1.addConstraint(Sketcher.Constraint("Symmetric", 7, 2, 43, 2, -1, 1))
sketch1.addConstraint(Sketcher.Constraint("Symmetric", 10, 2, 46, 2, -1, 1))
sketch1.addConstraint(Sketcher.Constraint("Symmetric", 13, 2, 49, 2, -1, 1))
sketch1.addConstraint(Sketcher.Constraint("Symmetric", 16, 2, 52, 2, -1, 1))
sketch1.addConstraint(Sketcher.Constraint("Symmetric", 19, 2, 55, 2, -1, 1))
sketch1.addConstraint(Sketcher.Constraint("Symmetric", 22, 2, 58, 2, -1, 1))
sketch1.addConstraint(Sketcher.Constraint("Symmetric", 25, 2, 61, 2, -1, 1))
sketch1.addConstraint(Sketcher.Constraint("Symmetric", 28, 2, 64, 2, -1, 1))
sketch1.addConstraint(Sketcher.Constraint("Symmetric", 31, 2, 67, 2, -1, 1))
sketch1.addConstraint(Sketcher.Constraint("Symmetric", 34, 2, 70, 2, -1, 1))
sketch1.addConstraint(Sketcher.Constraint("Symmetric", 13, 2, 19, 2, -2))
sketch1.addConstraint(Sketcher.Constraint("Symmetric", 10, 2, 22, 2, -2))
sketch1.addConstraint(Sketcher.Constraint("Symmetric", 7, 2, 25, 2, -2))
sketch1.addConstraint(Sketcher.Constraint("Symmetric", 4, 2, 28, 2, -2))
sketch1.addConstraint(Sketcher.Constraint("Symmetric", 1, 2, 31, 2, -2))
sketch1.addConstraint(Sketcher.Constraint("PointOnObject", 16, 2, -2))
sketch1.addConstraint(Sketcher.Constraint("PointOnObject", 34, 2, -1))
sketch1.addConstraint(Sketcher.Constraint("Perpendicular", 1, 19))
sketch1.addConstraint(Sketcher.Constraint("Perpendicular", 2, 20))
sketch1.addConstraint(Sketcher.Constraint("Perpendicular", 4, 22))
sketch1.addConstraint(Sketcher.Constraint("Perpendicular", 5, 23))
sketch1.addConstraint(Sketcher.Constraint("Perpendicular", 7, 25))
sketch1.addConstraint(Sketcher.Constraint("Perpendicular", 8, 26))
sketch1.addConstraint(Sketcher.Constraint("Perpendicular", 10, 28))
sketch1.addConstraint(Sketcher.Constraint("Perpendicular", 11, 29))
sketch1.addConstraint(Sketcher.Constraint("Perpendicular", 13, 31))
sketch1.addConstraint(Sketcher.Constraint("Perpendicular", 14, 32))
sketch1.addConstraint(Sketcher.Constraint("Perpendicular", 16, 34))
sketch1.addConstraint(Sketcher.Constraint("Perpendicular", 17, 35))
sketch1.addConstraint(Sketcher.Constraint("Perpendicular", 19, 37))
sketch1.addConstraint(Sketcher.Constraint("Perpendicular", 20, 38))
sketch1.addConstraint(Sketcher.Constraint("Perpendicular", 22, 40))
sketch1.addConstraint(Sketcher.Constraint("Perpendicular", 23, 41))
sketch1.addConstraint(Sketcher.Constraint("Perpendicular", 25, 43))
sketch1.addConstraint(Sketcher.Constraint("Perpendicular", 26, 44))
sketch1.addConstraint(Sketcher.Constraint("Perpendicular", 28, 46))
sketch1.addConstraint(Sketcher.Constraint("Perpendicular", 29, 47))
sketch1.addConstraint(Sketcher.Constraint("Perpendicular", 31, 49))
sketch1.addConstraint(Sketcher.Constraint("Perpendicular", 32, 50))
sketch1.addConstraint(Sketcher.Constraint("Perpendicular", 34, 52))
sketch1.addConstraint(Sketcher.Constraint("Perpendicular", 35, 53))
sketch1.addConstraint(Sketcher.Constraint("Perpendicular", 37, 55))
sketch1.addConstraint(Sketcher.Constraint("Perpendicular", 38, 56))
sketch1.addConstraint(Sketcher.Constraint("Perpendicular", 40, 58))
sketch1.addConstraint(Sketcher.Constraint("Perpendicular", 41, 59))
sketch1.addConstraint(Sketcher.Constraint("Perpendicular", 43, 61))
sketch1.addConstraint(Sketcher.Constraint("Perpendicular", 44, 62))
sketch1.addConstraint(Sketcher.Constraint("Perpendicular", 46, 64))
sketch1.addConstraint(Sketcher.Constraint("Perpendicular", 47, 65))
sketch1.addConstraint(Sketcher.Constraint("Perpendicular", 49, 67))
sketch1.addConstraint(Sketcher.Constraint("Perpendicular", 50, 68))
sketch1.addConstraint(Sketcher.Constraint("Perpendicular", 52, 70))
sketch1.addConstraint(Sketcher.Constraint("Perpendicular", 53, 71))
sketch1.addConstraint(Sketcher.Constraint("Horizontal", 15, 1, 17, 2))
sketch1.addConstraint(Sketcher.Constraint("Horizontal", 14, 2, 18, 1))
sketch1.addConstraint(Sketcher.Constraint("Horizontal", 12, 1, 20, 2))
sketch1.addConstraint(Sketcher.Constraint("Horizontal", 11, 2, 21, 1))
sketch1.addConstraint(Sketcher.Constraint("Horizontal", 9, 1, 23, 2))
sketch1.addConstraint(Sketcher.Constraint("Horizontal", 8, 2, 24, 1))
sketch1.addConstraint(Sketcher.Constraint("Equal", 1, 2))
sketch1.addConstraint(Sketcher.Constraint("Equal", 2, 4))
sketch1.addConstraint(Sketcher.Constraint("Equal", 4, 5))
sketch1.addConstraint(Sketcher.Constraint("Equal", 5, 7))
sketch1.addConstraint(Sketcher.Constraint("Equal", 7, 8))
sketch1.addConstraint(Sketcher.Constraint("Equal", 8, 10))
sketch1.addConstraint(Sketcher.Constraint("Equal", 10, 11))
sketch1.addConstraint(Sketcher.Constraint("Equal", 11, 13))
sketch1.addConstraint(Sketcher.Constraint("Equal", 13, 14))
sketch1.addConstraint(Sketcher.Constraint("Equal", 14, 16))
sketch1.addConstraint(Sketcher.Constraint("Equal", 32, 34))
sketch1.addConstraint(Sketcher.Constraint("Radius", 0, 7.5))
sketch1.addConstraint(Sketcher.Constraint("Radius", 73, 2.5))
sketch1.addConstraint(Sketcher.Constraint("DistanceY", 16, 2, -1, 1, 10.03))
sketch1.addConstraint(Sketcher.Constraint("DistanceY", -1, 1, 72, 1, 1.95))
sketch1.addConstraint(Sketcher.Constraint("DistanceY", 4, 2, -1, 1, 5.015))
sketch1.addConstraint(Sketcher.Constraint("DistanceX", -1, 1, 3, 1, 6.917688))
sketch1.addConstraint(Sketcher.Constraint("DistanceX", -1, 1, 7, 2, 7.092281))
sketch1.addConstraint(Sketcher.Constraint("DistanceY", 15, 1, -1, 1, 7.439651))
sketch1.addConstraint(Sketcher.Constraint("DistanceX", -1, 1, 0, 1, 7.431906))
sketch1.addConstraint(Sketcher.Constraint("DistanceX", -1, 1, 1, 2, 9.688236))
pad1 = doc.addObject("PartDesign::Pad", "Pad")
body.addObject(pad1)
pad1.Profile = sketch1
pad1.Length = 6
pad1.Reversed = True

doc.recompute()
